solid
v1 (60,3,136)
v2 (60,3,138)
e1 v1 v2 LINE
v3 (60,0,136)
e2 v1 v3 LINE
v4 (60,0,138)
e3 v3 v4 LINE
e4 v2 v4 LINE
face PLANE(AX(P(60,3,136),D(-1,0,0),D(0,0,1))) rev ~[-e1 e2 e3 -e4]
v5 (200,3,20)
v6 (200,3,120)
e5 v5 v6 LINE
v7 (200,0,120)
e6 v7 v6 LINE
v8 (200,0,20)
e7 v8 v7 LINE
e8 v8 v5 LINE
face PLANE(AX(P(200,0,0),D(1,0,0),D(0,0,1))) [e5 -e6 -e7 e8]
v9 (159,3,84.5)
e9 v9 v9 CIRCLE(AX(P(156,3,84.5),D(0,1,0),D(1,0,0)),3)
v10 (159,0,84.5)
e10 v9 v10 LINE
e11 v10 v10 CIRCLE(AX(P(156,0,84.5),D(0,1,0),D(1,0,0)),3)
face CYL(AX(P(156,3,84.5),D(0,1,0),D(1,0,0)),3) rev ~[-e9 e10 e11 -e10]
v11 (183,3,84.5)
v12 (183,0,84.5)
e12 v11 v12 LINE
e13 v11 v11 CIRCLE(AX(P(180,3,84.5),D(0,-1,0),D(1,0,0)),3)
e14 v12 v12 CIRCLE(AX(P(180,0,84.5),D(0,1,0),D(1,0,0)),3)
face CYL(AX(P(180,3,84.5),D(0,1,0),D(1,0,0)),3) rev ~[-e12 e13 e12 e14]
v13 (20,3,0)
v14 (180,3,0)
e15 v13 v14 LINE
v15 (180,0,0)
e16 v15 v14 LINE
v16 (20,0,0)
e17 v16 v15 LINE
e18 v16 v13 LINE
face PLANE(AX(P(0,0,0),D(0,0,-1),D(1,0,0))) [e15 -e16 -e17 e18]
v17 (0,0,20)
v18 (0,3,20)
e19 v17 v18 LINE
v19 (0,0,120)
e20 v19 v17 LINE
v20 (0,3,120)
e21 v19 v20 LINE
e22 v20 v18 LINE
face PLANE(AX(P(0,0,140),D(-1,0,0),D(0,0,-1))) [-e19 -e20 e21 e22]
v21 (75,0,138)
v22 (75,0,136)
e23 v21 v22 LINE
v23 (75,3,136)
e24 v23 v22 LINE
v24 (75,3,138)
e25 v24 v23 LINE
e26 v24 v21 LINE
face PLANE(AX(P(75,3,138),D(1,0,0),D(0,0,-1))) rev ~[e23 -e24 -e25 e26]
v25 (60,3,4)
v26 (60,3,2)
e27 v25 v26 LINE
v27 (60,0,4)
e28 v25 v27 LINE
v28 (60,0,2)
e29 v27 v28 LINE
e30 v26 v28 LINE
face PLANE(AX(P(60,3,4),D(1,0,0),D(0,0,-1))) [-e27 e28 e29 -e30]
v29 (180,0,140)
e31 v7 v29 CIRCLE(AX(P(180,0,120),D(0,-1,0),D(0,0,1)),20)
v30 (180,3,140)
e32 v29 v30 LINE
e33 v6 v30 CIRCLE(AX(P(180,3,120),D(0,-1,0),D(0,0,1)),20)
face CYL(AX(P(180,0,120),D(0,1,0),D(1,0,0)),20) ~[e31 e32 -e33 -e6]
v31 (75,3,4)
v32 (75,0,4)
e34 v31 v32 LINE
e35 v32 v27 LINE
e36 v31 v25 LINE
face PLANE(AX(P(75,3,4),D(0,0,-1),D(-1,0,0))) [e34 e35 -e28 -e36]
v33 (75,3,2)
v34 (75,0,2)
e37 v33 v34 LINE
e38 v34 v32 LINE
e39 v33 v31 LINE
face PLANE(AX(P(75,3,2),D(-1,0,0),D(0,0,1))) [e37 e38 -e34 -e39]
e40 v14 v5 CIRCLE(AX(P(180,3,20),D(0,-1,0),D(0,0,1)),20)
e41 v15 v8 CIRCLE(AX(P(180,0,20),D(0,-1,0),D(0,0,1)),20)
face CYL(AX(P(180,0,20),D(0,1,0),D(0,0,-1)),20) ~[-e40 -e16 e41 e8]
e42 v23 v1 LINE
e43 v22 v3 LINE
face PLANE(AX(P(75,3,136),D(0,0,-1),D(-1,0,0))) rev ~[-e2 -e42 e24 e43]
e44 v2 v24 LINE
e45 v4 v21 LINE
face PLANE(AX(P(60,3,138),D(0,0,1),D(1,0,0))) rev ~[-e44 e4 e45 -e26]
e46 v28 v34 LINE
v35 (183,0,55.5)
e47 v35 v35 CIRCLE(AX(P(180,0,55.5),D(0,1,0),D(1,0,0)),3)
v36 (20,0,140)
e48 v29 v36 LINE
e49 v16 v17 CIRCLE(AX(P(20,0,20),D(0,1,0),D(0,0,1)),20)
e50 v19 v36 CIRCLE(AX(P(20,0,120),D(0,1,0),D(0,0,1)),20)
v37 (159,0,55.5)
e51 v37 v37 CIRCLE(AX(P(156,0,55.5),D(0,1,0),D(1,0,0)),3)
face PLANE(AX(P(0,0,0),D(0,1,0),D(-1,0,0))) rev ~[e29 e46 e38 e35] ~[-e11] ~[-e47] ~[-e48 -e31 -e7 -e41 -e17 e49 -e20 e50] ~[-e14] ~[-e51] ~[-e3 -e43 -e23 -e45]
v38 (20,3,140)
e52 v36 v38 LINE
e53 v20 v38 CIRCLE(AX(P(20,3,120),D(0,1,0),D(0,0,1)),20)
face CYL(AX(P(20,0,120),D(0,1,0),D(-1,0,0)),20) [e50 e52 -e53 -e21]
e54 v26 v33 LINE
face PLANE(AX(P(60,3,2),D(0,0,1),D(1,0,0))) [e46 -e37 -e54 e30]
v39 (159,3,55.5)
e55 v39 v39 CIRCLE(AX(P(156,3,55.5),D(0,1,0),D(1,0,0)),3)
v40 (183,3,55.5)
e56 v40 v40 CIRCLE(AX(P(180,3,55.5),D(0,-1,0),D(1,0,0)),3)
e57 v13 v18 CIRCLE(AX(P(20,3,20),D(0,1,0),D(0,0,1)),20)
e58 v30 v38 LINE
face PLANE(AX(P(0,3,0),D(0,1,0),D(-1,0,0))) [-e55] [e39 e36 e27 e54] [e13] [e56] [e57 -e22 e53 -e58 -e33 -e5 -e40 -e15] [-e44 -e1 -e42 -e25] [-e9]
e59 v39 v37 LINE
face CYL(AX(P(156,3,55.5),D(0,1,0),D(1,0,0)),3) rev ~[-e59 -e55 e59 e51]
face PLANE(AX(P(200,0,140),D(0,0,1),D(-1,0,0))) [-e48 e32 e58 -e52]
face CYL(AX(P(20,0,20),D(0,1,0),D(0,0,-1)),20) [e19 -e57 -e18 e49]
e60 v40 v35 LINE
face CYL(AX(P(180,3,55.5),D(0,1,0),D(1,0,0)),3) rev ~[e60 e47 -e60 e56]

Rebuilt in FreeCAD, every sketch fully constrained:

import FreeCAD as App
import Part
import Sketcher

V = App.Vector
Q = App.Units.Quantity


def edges_at(feature, points):
    """Names of the edges that pass closest to the given points."""
    edges = feature.Shape.Edges
    near = lambda p: min(range(len(edges)), key=lambda i: edges[i].distToShape(Part.Vertex(*p))[0])
    return sorted({f"Edge{near(p) + 1}" for p in points})


def add_polygon(sketch, points):
    """Adds a closed chain of lines whose ends are joined by coincident constraints."""
    first, n = sketch.GeometryCount, len(points)
    for a, b in zip(points, points[1:] + points[:1]):
        sketch.addGeometry(Part.LineSegment(App.Vector(*a, 0), App.Vector(*b, 0)), False)
    for i in range(n):
        sketch.addConstraint(Sketcher.Constraint("Coincident", first + i, 2, first + (i + 1) % n, 1))

doc = App.newDocument("Part")
body = doc.addObject("PartDesign::Body", "Body")

# Sketch on XZ plane
sketch1 = doc.addObject("Sketcher::SketchObject", "Sketch")
body.addObject(sketch1)
sketch1.AttachmentSupport = (doc.XZ_Plane, [""])
sketch1.MapMode = "FlatFace"
add_polygon(sketch1, [(200, 0), (0, 0), (0, 140), (200, 140)])  # lines 0-3
sketch1.addConstraint([
    Sketcher.Constraint("Horizontal", 0),
    Sketcher.Constraint("Vertical", 1),
    Sketcher.Constraint("Horizontal", 2),
    Sketcher.Constraint("Vertical", 3),
    Sketcher.Constraint("Coincident", 0, 2, -1, 1),
    Sketcher.Constraint("DistanceX", 0, 2, 0, 1, Q("200 mm")),
    Sketcher.Constraint("DistanceY", 1, 1, 1, 2, Q("140 mm")),
])
pad1 = doc.addObject("PartDesign::Pad", "Pad")
body.addObject(pad1)
pad1.Profile = sketch1
pad1.Length = 3
pad1.Reversed = True

# Sketch on XZ plane
sketch2 = doc.addObject("Sketcher::SketchObject", "Sketch001")
body.addObject(sketch2)
sketch2.AttachmentSupport = (doc.XZ_Plane, [""])
sketch2.MapMode = "FlatFace"
sketch2.AttachmentOffset = App.Placement(V(0, 0, -3), App.Rotation())
add_polygon(sketch2, [(75, 2), (60, 2), (60, 4), (75, 4)])  # lines 0-3
add_polygon(sketch2, [(60, 136), (60, 138), (75, 138), (75, 136)])  # lines 4-7
sketch2.addConstraint([
    Sketcher.Constraint("Horizontal", 0),
    Sketcher.Constraint("Vertical", 1),
    Sketcher.Constraint("Horizontal", 2),
    Sketcher.Constraint("Vertical", 3),
    Sketcher.Constraint("Vertical", 4),
    Sketcher.Constraint("Horizontal", 5),
    Sketcher.Constraint("Vertical", 6),
    Sketcher.Constraint("Horizontal", 7),
    Sketcher.Constraint("Vertical", 1, 2, 4, 2),
    Sketcher.Constraint("Vertical", 3, 2, 5, 2),
    Sketcher.Constraint("Equal", 3, 4),
    Sketcher.Constraint("DistanceX", 0, 2, 0, 1, Q("15 mm")),
    Sketcher.Constraint("DistanceY", 1, 1, 1, 2, Q("2 mm")),
    Sketcher.Constraint("DistanceY", -1, 1, 0, 2, Q("2 mm")),
    Sketcher.Constraint("DistanceX", -1, 1, 0, 2, Q("60 mm")),
    Sketcher.Constraint("DistanceY", -1, 1, 4, 2, Q("138 mm")),
])
pocket1 = doc.addObject("PartDesign::Pocket", "Pocket")
body.addObject(pocket1)
pocket1.Profile = sketch2
pocket1.Length = 3
pocket1.Reversed = True

# Sketch on XZ plane
sketch3 = doc.addObject("Sketcher::SketchObject", "Sketch002")
body.addObject(sketch3)
sketch3.AttachmentSupport = (doc.XZ_Plane, [""])
sketch3.MapMode = "FlatFace"
sketch3.AttachmentOffset = App.Placement(V(0, 0, -3), App.Rotation())
sketch3.addGeometry([
    Part.Circle(V(156, 55.5, 0), V(0, 0, 1), 3),
    Part.Circle(V(180, 84.5, 0), V(0, 0, 1), 3),
    Part.Circle(V(180, 55.5, 0), V(0, 0, 1), 3),
    Part.Circle(V(156, 84.5, 0), V(0, 0, 1), 3),
], False)
sketch3.addConstraint([
    Sketcher.Constraint("Equal", 0, 1),
    Sketcher.Constraint("Equal", 1, 2),
    Sketcher.Constraint("Equal", 2, 3),
    Sketcher.Constraint("Horizontal", 0, 3, 2, 3),
    Sketcher.Constraint("Horizontal", 1, 3, 3, 3),
    Sketcher.Constraint("Vertical", 1, 3, 2, 3),
    Sketcher.Constraint("Vertical", 0, 3, 3, 3),
    Sketcher.Constraint("Diameter", 0, Q("6 mm")),
    Sketcher.Constraint("DistanceX", 0, 3, 1, 3, Q("24 mm")),
    Sketcher.Constraint("DistanceX", -1, 1, 0, 3, Q("156 mm")),
    Sketcher.Constraint("DistanceY", 0, 3, 1, 3, Q("29 mm")),
    Sketcher.Constraint("DistanceY", -1, 1, 0, 3, Q("55.5 mm")),
])
pocket2 = doc.addObject("PartDesign::Pocket", "Pocket001")
body.addObject(pocket2)
pocket2.Profile = sketch3
pocket2.Length = 3
pocket2.Reversed = True
doc.recompute()

fillet = doc.addObject("PartDesign::Fillet", "Fillet")
body.addObject(fillet)
fillet.Base = (pocket2, edges_at(pocket2, [
    (0, 1.5, 140),
    (0, 1.5, 0),
    (200, 1.5, 0),
    (200, 1.5, 140),
]))
fillet.Radius = 20

doc.recompute()
